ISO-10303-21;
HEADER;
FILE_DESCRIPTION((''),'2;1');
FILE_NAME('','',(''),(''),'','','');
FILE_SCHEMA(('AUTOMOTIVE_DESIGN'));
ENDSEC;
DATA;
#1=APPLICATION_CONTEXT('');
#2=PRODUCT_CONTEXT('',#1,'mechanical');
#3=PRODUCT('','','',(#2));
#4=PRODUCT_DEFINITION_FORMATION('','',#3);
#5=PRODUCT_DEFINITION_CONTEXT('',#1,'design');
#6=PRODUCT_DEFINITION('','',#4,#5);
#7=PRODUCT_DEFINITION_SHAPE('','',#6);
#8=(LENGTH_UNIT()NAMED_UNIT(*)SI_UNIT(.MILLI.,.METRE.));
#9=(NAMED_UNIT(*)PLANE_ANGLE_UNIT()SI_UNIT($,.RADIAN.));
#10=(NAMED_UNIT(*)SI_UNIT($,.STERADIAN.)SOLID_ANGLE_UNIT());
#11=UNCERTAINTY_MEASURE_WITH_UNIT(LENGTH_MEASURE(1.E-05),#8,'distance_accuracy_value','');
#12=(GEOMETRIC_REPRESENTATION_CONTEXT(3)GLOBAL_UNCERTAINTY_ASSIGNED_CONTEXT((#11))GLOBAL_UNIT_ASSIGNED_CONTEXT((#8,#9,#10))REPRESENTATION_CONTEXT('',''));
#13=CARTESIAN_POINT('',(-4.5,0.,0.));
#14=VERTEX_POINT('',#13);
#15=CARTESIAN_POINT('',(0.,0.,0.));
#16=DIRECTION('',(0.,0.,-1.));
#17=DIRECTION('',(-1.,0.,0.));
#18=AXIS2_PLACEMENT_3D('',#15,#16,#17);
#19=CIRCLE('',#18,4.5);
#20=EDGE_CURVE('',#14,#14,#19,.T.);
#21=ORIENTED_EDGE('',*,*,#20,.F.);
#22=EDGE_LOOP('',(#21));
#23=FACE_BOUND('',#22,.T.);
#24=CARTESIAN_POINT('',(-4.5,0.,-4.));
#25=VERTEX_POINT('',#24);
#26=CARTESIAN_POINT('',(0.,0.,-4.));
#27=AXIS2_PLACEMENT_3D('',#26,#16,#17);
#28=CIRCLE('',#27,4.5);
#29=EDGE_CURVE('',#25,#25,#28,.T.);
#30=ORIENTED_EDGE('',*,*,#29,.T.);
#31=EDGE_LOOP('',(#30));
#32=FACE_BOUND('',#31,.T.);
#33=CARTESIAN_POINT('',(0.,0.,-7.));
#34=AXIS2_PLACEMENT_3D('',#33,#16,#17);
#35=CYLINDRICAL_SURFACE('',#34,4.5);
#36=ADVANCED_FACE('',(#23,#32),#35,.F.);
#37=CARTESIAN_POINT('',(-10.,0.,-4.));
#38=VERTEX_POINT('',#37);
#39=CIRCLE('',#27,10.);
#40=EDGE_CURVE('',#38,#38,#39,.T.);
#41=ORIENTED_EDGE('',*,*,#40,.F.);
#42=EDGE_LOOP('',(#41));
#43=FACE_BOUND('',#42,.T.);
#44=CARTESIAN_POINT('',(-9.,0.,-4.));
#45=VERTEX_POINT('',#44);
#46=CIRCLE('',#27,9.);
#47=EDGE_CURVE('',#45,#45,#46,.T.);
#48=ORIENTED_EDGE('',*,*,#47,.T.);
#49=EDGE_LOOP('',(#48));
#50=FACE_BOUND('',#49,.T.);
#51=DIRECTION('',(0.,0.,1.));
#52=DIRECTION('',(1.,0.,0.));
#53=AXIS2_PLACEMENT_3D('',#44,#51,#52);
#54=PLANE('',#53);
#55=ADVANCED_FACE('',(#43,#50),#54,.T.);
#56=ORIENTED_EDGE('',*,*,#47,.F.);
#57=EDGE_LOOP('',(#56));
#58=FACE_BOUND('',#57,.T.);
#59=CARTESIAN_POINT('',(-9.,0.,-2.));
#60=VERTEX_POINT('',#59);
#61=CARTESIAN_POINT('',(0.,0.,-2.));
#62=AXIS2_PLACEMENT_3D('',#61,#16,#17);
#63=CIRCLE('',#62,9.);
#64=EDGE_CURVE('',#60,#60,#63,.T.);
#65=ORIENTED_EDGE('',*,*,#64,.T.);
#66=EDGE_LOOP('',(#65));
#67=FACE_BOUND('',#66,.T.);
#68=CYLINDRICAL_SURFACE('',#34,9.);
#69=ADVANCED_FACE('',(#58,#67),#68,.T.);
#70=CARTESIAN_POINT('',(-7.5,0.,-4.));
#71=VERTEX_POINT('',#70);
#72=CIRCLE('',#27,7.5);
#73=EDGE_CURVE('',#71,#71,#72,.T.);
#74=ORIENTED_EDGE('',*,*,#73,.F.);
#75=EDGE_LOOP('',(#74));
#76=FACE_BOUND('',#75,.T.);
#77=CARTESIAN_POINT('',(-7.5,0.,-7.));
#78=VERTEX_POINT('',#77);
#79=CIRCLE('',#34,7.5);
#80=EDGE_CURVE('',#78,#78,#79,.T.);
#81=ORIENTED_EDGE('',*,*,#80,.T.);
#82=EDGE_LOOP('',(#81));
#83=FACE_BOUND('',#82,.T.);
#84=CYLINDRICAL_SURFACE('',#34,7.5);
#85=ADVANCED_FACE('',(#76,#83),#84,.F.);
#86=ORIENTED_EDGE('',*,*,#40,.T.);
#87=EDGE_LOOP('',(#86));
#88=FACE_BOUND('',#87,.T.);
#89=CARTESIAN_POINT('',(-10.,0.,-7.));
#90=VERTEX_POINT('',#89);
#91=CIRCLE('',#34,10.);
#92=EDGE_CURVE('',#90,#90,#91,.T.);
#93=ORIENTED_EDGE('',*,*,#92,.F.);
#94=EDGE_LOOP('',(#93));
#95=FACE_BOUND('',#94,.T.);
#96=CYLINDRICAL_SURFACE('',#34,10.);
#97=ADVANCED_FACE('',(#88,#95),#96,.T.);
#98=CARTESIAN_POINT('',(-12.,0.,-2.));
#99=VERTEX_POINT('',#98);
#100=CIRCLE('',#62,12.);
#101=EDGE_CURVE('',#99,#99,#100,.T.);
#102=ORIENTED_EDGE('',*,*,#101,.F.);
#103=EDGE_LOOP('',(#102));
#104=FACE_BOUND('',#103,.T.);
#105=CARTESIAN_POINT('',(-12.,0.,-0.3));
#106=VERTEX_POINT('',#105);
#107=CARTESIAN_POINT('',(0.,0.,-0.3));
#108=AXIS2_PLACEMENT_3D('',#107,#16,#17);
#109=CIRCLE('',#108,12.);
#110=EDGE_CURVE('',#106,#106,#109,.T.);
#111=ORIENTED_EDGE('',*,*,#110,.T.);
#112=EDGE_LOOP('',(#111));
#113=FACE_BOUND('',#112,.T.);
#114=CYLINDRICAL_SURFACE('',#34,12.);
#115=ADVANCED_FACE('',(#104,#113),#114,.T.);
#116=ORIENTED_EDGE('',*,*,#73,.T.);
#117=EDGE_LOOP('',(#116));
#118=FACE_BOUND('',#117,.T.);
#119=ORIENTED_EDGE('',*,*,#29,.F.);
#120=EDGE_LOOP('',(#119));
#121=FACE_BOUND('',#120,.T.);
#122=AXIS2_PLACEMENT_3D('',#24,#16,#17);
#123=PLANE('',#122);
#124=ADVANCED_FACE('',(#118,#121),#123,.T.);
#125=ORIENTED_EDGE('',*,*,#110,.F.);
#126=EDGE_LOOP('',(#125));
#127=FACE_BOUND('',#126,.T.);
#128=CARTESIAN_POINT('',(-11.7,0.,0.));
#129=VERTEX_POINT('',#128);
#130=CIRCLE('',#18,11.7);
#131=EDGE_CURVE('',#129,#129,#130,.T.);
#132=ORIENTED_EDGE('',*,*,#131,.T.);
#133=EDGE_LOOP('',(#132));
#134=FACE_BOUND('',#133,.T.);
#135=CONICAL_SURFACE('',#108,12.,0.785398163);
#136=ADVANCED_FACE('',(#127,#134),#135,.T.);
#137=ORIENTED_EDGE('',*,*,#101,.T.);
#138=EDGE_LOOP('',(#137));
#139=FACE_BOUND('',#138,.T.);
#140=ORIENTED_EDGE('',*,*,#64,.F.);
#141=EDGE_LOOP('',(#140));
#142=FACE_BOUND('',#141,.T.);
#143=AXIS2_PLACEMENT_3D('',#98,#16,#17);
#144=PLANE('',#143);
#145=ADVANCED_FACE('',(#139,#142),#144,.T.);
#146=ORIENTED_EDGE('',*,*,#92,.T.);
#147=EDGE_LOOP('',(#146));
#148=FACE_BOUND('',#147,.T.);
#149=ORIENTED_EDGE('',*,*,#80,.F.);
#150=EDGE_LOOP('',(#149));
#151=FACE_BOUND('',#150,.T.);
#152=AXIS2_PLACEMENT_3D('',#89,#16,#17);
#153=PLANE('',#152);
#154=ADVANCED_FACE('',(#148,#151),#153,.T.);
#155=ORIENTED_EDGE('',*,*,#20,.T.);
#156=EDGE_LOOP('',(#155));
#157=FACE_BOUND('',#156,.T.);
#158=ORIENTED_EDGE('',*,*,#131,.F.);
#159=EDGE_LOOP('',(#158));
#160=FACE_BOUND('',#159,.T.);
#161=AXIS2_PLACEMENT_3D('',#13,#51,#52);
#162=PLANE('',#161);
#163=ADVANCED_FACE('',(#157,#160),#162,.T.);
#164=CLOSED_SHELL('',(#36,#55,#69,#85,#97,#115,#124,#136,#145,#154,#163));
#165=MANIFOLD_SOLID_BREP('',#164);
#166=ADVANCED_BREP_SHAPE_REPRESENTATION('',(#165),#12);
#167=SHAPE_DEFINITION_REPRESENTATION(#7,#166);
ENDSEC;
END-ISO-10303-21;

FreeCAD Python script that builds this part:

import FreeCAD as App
import Part
import Sketcher
Q = App.Units.Quantity

doc = App.newDocument("Part")
body = doc.addObject("PartDesign::Body", "Body")

sketch1 = body.newObject("Sketcher::SketchObject", "Sketch")
sketch1.AttachmentSupport = (doc.getObject("XZ_Plane"), [""])
sketch1.MapMode = "FlatFace"
sketch1.addGeometry([
    Part.LineSegment(App.Vector(-11.7, 0, 0), App.Vector(-4.5, 0, 0)),
    Part.LineSegment(App.Vector(-4.5, 0, 0), App.Vector(-4.5, -4, 0)),
    Part.LineSegment(App.Vector(-4.5, -4, 0), App.Vector(-7.5, -4, 0)),
    Part.LineSegment(App.Vector(-7.5, -4, 0), App.Vector(-7.5, -7, 0)),
    Part.LineSegment(App.Vector(-7.5, -7, 0), App.Vector(-10, -7, 0)),
    Part.LineSegment(App.Vector(-10, -7, 0), App.Vector(-10, -4, 0)),
    Part.LineSegment(App.Vector(-10, -4, 0), App.Vector(-9, -4, 0)),
    Part.LineSegment(App.Vector(-9, -4, 0), App.Vector(-9, -2, 0)),
    Part.LineSegment(App.Vector(-9, -2, 0), App.Vector(-12, -2, 0)),
    Part.LineSegment(App.Vector(-12, -2, 0), App.Vector(-12, -0.3, 0)),
    Part.LineSegment(App.Vector(-12, -0.3, 0), App.Vector(-11.7, 0, 0)),
], False)
sketch1.addConstraint([
    Sketcher.Constraint("Coincident", 0, 2, 1, 1),
    Sketcher.Constraint("Coincident", 1, 2, 2, 1),
    Sketcher.Constraint("Coincident", 2, 2, 3, 1),
    Sketcher.Constraint("Coincident", 3, 2, 4, 1),
    Sketcher.Constraint("Coincident", 4, 2, 5, 1),
    Sketcher.Constraint("Coincident", 5, 2, 6, 1),
    Sketcher.Constraint("Coincident", 6, 2, 7, 1),
    Sketcher.Constraint("Coincident", 7, 2, 8, 1),
    Sketcher.Constraint("Coincident", 8, 2, 9, 1),
    Sketcher.Constraint("Coincident", 9, 2, 10, 1),
    Sketcher.Constraint("Coincident", 10, 2, 0, 1),
    Sketcher.Constraint("Horizontal", 0),
    Sketcher.Constraint("Vertical", 1),
    Sketcher.Constraint("Horizontal", 2),
    Sketcher.Constraint("Vertical", 3),
    Sketcher.Constraint("Horizontal", 4),
    Sketcher.Constraint("Vertical", 5),
    Sketcher.Constraint("Horizontal", 6),
    Sketcher.Constraint("Vertical", 7),
    Sketcher.Constraint("Horizontal", 8),
    Sketcher.Constraint("Vertical", 9),
    Sketcher.Constraint("PointOnObject", 0, 2, -1),
    Sketcher.Constraint("Horizontal", 2, 2, 5, 2),
    Sketcher.Constraint("Equal", 2, 8),
    Sketcher.Constraint("Equal", 8, 3),
    Sketcher.Constraint("DistanceX", 2, 2, 2, 1, 3.0),
    Sketcher.Constraint("DistanceX", 6, 1, 6, 2, 1.0),
    Sketcher.Constraint("DistanceY", 1, 2, 1, 1, 4.0),
    Sketcher.Constraint("DistanceY", 7, 1, 7, 2, 2.0),
    Sketcher.Constraint("Angle", 10, Q("45 deg")),
    Sketcher.Constraint("DistanceX", 0, 1, 0, 2, 7.2),
    Sketcher.Constraint("DistanceX", 4, 2, 4, 1, 2.5),
    Sketcher.Constraint("DistanceX", 4, 2, -1, 1, 10.0),
])
revolution = body.newObject("PartDesign::Revolution", "Revolution")
revolution.Profile = sketch1
revolution.ReferenceAxis = (sketch1, ["V_Axis"])
revolution.Angle = 360

doc.recompute()
